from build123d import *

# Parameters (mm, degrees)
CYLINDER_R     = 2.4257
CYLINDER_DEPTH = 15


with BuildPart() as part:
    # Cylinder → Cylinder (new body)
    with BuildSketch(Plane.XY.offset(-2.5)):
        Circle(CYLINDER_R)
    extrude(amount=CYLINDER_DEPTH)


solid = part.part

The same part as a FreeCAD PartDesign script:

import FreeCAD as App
import Part
import Sketcher

doc = App.newDocument("Part")
body = doc.addObject("PartDesign::Body", "Body")

# Sketch on XY plane
sketch1 = body.newObject("Sketcher::SketchObject", "Sketch")
sketch1.AttachmentSupport = (doc.getObject("XY_Plane"), [""])
sketch1.MapMode = "FlatFace"
sketch1.AttachmentOffset = App.Placement(App.Vector(0, 0, -2.5), App.Rotation())
sketch1.addGeometry(Part.Circle(App.Vector(0, 0, 0), App.Vector(0, 0, 1), 2.4), False)
sketch1.addConstraint(Sketcher.Constraint("Coincident", 0, 3, -1, 1))
sketch1.addConstraint(Sketcher.Constraint("Diameter", 0, 4.8514))
pad1 = body.newObject("PartDesign::Pad", "Pad")
pad1.Profile = sketch1
pad1.Length = 15

doc.recompute()
